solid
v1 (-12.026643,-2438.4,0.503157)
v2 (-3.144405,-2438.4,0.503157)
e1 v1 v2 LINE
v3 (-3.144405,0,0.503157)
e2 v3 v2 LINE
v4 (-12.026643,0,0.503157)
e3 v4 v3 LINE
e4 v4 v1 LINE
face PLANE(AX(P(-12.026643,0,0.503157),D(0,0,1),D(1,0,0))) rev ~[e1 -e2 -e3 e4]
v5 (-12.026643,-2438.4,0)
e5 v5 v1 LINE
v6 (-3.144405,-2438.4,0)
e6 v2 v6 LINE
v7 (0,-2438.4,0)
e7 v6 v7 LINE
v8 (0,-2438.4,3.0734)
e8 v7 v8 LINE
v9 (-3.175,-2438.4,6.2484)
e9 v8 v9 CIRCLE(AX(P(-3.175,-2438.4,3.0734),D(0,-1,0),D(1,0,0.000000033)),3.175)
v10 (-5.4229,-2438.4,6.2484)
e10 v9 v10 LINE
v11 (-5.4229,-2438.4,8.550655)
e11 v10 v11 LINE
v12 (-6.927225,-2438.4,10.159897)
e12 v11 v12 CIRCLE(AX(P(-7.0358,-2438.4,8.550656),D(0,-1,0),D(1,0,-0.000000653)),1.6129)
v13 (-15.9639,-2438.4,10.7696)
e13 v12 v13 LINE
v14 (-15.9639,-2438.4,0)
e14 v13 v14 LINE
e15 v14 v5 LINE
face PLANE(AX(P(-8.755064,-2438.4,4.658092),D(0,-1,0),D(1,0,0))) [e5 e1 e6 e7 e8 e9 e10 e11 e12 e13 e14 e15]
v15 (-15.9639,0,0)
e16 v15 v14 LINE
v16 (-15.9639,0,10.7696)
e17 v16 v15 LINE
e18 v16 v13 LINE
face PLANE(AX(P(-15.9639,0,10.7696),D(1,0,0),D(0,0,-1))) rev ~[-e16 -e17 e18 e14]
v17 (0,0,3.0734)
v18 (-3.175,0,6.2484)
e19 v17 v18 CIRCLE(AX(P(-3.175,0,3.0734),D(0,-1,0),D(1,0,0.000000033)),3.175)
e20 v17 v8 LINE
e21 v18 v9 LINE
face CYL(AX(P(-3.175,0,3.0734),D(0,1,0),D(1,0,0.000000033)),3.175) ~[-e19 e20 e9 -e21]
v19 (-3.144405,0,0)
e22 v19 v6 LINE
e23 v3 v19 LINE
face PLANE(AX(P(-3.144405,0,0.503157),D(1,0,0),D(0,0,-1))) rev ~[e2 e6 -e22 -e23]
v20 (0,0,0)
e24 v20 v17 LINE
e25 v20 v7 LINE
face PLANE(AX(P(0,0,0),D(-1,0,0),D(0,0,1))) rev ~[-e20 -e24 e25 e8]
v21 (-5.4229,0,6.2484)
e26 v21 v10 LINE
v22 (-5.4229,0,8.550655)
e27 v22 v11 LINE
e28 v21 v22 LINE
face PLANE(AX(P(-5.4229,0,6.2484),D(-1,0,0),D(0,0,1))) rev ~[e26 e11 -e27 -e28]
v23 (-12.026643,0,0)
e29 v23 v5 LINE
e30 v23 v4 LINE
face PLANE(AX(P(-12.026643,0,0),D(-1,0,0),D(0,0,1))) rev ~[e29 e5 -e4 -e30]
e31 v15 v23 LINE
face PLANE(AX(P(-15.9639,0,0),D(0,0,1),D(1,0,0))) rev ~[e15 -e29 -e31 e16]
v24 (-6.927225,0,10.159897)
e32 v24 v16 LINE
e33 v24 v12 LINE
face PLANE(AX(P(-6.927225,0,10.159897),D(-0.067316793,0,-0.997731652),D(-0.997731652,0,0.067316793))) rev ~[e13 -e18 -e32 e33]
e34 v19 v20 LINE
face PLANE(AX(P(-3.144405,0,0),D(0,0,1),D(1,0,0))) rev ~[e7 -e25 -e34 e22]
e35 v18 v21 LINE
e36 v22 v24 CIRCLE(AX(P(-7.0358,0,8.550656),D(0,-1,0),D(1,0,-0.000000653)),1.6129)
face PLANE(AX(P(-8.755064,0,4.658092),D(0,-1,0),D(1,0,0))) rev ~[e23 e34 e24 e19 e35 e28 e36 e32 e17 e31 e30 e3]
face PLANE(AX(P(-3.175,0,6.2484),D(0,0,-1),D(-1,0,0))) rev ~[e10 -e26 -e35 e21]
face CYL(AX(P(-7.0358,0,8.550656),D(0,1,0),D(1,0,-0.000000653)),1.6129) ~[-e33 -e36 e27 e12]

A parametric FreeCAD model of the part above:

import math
import FreeCAD as App
import Part
import Sketcher

V = App.Vector
Q = App.Units.Quantity

doc = App.newDocument("Part")
params = doc.addObject("Spreadsheet::Sheet", "Params")
for row, (alias, value) in enumerate([
    ("sketch1_radius", "0.125 in"),
    ("sketch1_height", "0.121 in"),
    ("sketch1_height2", "0.424 in"),
    ("pad1_length", "96 in"),
], start=1):
    params.set(f"A{row}", alias)
    params.set(f"B{row}", "=" + value)
    params.setAlias(f"B{row}", alias)

body = doc.addObject("PartDesign::Body", "Body")

# Sketch on XZ plane
sketch1 = body.newObject("Sketcher::SketchObject", "Sketch")
sketch1.AttachmentSupport = (doc.getObject("XZ_Plane"), [""])
sketch1.MapMode = "FlatFace"
sketch1.addGeometry([
    Part.LineSegment(V(-3.1, 0, 0), V(0, 0, 0)),  # 0
    Part.LineSegment(V(0, 0, 0), V(0, 3.1, 0)),  # 1
    Part.ArcOfCircle(Part.Circle(V(-3.2, 3.1, 0), V(0, 0, 1), 3.2), math.radians(0), math.radians(90)),  # 2
    Part.LineSegment(V(-3.2, 6.2, 0), V(-5.4, 6.2, 0)),  # 3
    Part.LineSegment(V(-5.4, 6.2, 0), V(-5.4, 8.6, 0)),  # 4
    Part.ArcOfCircle(Part.Circle(V(-7, 8.6, 0), V(0, 0, 1), 1.6), math.radians(0), math.radians(86)),  # 5
    Part.LineSegment(V(-6.9, 10.2, 0), V(-16, 10.8, 0)),  # 6
    Part.LineSegment(V(-16, 10.8, 0), V(-16, 0, 0)),  # 7
    Part.LineSegment(V(-16, 0, 0), V(-12, 0, 0)),  # 8
    Part.LineSegment(V(-12, 0, 0), V(-12, 0.5, 0)),  # 9
    Part.LineSegment(V(-12, 0.5, 0), V(-3.1, 0.5, 0)),  # 10
    Part.LineSegment(V(-3.1, 0.5, 0), V(-3.1, 0, 0)),  # 11
], False)
sketch1.addConstraint([
    Sketcher.Constraint("Coincident", 0, 2, 1, 1),
    Sketcher.Constraint("Tangent", 1, 2, 2, 1),
    Sketcher.Constraint("Tangent", 2, 2, 3, 1),
    Sketcher.Constraint("Coincident", 3, 2, 4, 1),
    Sketcher.Constraint("Tangent", 4, 2, 5, 1),
    Sketcher.Constraint("Tangent", 5, 2, 6, 1),
    Sketcher.Constraint("Coincident", 6, 2, 7, 1),
    Sketcher.Constraint("Coincident", 7, 2, 8, 1),
    Sketcher.Constraint("Coincident", 8, 2, 9, 1),
    Sketcher.Constraint("Coincident", 9, 2, 10, 1),
    Sketcher.Constraint("Coincident", 10, 2, 11, 1),
    Sketcher.Constraint("Coincident", 11, 2, 0, 1),
    Sketcher.Constraint("Horizontal", 0),
    Sketcher.Constraint("Vertical", 1),
    Sketcher.Constraint("Horizontal", 3),
    Sketcher.Constraint("Vertical", 4),
    Sketcher.Constraint("Vertical", 7),
    Sketcher.Constraint("Horizontal", 8),
    Sketcher.Constraint("Vertical", 9),
    Sketcher.Constraint("Horizontal", 10),
    Sketcher.Constraint("Vertical", 11),
    Sketcher.Constraint("Coincident", 0, 2, -1, 1),
    Sketcher.Constraint("PointOnObject", 7, 2, -1),
    Sketcher.Constraint("Radius", 2, Q("0.125 in")),
    Sketcher.Constraint("Radius", 5, Q("0.0635 in")),
    Sketcher.Constraint("DistanceY", 1, 1, 1, 2, Q("0.121 in")),
    Sketcher.Constraint("DistanceY", 7, 2, 7, 1, Q("0.424 in")),
    Sketcher.Constraint("DistanceX", 3, 2, 3, 1, Q("0.0885 in")),
    Sketcher.Constraint("DistanceX", 6, 2, 4, 2, Q("0.415 in")),
    Sketcher.Constraint("DistanceX", 10, 1, 10, 2, 8.882238),
    Sketcher.Constraint("DistanceY", 9, 2, 5, 3, 8.047499),
    Sketcher.Constraint("Distance", 6, 9.05722),
    Sketcher.Constraint("DistanceX", 0, 1, 0, 2, 3.144405),
])
sketch1.setExpression("Constraints[23]", "Params.sketch1_radius")
sketch1.setExpression("Constraints[25]", "Params.sketch1_height")
sketch1.setExpression("Constraints[26]", "Params.sketch1_height2")
pad1 = body.newObject("PartDesign::Pad", "Pad")
pad1.Profile = sketch1
pad1.setExpression("Length", "Params.pad1_length")

doc.recompute()
